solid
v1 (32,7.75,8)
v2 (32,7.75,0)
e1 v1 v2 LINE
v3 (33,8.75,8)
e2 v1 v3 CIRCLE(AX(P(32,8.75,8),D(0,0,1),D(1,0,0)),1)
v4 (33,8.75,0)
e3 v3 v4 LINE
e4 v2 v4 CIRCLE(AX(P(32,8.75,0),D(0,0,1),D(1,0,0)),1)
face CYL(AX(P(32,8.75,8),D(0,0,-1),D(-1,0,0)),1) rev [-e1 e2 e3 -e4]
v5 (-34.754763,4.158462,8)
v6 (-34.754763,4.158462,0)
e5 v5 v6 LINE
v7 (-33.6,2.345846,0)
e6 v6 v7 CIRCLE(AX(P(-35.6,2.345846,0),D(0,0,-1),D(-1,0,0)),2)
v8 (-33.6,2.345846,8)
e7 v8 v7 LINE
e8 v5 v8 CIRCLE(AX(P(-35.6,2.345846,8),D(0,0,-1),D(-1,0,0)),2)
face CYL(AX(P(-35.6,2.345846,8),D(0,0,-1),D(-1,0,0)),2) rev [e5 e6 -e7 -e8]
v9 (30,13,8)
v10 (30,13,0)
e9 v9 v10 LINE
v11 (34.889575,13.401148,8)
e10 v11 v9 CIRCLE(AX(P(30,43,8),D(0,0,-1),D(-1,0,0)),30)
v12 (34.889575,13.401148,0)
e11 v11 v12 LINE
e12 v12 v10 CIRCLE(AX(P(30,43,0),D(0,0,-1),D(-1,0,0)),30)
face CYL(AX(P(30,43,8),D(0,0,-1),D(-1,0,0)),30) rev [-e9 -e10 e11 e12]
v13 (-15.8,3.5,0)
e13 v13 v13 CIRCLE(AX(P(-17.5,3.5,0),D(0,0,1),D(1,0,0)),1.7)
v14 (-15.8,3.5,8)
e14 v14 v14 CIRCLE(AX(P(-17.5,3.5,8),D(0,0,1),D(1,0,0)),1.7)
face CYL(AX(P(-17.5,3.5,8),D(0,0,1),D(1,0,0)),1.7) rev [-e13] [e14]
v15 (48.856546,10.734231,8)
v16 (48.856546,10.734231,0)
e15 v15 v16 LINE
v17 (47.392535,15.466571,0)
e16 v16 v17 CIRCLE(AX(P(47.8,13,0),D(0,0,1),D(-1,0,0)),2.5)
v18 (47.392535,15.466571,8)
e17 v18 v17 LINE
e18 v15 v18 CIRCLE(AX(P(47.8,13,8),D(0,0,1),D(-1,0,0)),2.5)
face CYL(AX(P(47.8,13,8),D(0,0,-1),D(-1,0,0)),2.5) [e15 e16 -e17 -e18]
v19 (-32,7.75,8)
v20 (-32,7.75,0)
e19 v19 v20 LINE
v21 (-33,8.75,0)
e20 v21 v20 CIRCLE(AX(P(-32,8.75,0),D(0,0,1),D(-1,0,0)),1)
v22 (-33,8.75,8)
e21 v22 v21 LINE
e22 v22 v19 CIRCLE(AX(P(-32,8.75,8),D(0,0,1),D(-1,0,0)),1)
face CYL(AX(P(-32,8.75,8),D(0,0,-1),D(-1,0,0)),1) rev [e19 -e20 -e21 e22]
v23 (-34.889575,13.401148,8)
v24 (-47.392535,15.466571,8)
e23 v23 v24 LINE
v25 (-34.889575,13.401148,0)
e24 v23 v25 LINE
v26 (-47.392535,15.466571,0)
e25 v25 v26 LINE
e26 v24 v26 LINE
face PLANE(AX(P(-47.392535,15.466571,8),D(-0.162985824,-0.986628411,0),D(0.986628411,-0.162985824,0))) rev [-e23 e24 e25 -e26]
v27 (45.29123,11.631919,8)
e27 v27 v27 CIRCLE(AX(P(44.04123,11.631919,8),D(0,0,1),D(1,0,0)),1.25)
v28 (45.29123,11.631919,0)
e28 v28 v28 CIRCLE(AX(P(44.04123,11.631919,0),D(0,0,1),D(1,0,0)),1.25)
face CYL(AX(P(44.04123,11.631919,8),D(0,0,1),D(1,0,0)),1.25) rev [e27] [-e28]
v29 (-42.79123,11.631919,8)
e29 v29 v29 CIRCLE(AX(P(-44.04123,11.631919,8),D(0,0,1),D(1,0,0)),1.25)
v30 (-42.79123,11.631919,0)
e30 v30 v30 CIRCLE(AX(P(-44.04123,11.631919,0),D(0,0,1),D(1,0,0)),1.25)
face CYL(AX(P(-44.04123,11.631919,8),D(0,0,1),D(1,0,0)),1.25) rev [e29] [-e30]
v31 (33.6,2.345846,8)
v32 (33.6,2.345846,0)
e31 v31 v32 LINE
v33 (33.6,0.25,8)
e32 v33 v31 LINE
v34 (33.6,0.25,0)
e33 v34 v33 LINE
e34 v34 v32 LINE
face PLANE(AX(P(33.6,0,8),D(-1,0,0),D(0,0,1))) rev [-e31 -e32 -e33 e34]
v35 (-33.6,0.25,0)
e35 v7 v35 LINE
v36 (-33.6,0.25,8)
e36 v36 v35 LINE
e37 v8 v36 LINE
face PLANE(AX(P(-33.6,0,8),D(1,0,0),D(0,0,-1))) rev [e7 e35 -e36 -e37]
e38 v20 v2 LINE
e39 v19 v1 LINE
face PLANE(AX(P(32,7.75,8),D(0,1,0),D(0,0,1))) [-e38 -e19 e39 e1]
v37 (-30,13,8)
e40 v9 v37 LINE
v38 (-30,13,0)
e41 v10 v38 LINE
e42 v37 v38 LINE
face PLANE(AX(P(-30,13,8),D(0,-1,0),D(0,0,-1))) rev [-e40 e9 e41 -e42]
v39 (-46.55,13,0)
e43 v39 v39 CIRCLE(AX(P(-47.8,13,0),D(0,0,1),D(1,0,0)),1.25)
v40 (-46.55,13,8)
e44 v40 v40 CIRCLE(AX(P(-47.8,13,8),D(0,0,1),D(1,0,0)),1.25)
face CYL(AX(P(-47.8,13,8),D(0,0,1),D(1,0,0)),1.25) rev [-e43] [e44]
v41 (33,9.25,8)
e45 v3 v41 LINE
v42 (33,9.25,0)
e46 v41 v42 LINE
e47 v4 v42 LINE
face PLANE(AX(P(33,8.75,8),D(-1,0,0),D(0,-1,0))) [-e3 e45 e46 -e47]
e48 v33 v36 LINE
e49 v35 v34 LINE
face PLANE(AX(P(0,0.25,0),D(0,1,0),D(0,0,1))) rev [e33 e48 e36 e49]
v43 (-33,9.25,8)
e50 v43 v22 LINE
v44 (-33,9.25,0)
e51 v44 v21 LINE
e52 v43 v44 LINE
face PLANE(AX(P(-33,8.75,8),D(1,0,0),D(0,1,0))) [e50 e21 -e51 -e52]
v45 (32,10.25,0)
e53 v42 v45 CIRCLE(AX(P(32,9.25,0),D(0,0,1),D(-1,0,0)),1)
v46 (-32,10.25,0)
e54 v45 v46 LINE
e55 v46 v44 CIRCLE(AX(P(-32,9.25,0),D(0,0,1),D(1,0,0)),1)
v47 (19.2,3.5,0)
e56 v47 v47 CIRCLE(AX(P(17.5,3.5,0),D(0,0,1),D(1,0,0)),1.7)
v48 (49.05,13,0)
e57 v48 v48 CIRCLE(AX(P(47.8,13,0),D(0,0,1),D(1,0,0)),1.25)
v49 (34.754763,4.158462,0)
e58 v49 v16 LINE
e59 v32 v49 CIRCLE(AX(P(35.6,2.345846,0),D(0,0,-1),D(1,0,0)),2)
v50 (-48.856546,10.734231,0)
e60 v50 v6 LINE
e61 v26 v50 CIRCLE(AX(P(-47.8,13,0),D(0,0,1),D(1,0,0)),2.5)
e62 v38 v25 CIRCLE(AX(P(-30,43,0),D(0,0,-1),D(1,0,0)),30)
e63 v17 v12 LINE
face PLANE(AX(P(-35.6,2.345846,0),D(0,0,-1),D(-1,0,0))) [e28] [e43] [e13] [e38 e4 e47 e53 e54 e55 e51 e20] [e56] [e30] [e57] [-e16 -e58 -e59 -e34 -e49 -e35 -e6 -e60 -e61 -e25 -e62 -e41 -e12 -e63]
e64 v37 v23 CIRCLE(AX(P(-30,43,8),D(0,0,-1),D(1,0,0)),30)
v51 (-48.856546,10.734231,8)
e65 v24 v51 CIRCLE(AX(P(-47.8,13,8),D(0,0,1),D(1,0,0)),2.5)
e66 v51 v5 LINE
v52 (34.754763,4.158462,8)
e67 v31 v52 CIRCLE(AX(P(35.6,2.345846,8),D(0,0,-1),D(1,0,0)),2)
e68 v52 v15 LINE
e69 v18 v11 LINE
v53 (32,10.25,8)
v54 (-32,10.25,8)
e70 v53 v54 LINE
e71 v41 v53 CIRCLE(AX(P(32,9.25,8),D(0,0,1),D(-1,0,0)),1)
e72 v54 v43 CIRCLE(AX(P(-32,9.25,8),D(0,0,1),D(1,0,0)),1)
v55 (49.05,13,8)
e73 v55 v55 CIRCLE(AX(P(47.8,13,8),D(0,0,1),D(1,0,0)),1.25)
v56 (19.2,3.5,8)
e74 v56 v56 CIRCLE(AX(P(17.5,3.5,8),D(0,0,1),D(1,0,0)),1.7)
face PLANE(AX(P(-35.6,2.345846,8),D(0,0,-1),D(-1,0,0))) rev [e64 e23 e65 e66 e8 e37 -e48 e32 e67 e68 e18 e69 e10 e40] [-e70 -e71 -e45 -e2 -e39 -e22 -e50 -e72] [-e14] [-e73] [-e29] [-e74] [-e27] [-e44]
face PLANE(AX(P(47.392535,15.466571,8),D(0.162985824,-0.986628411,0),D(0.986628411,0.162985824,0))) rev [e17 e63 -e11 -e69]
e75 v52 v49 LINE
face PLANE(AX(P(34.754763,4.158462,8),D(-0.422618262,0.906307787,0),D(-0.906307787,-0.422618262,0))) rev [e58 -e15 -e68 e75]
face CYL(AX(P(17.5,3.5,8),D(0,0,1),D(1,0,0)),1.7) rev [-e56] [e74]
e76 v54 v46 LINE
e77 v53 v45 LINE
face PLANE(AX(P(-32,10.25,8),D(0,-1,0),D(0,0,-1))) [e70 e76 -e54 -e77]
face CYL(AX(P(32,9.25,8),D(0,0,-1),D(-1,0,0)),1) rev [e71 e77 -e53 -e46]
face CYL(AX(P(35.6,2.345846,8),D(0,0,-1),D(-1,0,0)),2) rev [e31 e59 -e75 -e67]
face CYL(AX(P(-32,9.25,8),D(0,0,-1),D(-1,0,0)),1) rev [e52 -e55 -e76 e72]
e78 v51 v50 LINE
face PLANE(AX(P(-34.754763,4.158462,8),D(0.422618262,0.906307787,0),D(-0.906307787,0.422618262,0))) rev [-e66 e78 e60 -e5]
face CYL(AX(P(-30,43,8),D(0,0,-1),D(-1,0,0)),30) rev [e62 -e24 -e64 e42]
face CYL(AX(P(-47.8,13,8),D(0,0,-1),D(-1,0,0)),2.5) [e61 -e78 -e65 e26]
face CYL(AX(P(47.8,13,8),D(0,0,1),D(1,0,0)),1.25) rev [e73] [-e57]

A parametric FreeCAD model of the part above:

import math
import FreeCAD as App
import Part
import Sketcher
from FreeCAD import Vector
Q = App.Units.Quantity

doc = App.newDocument("Part")
body = doc.addObject("PartDesign::Body", "Body")

sketch1 = doc.addObject("Sketcher::SketchObject", "Sketch")
body.addObject(sketch1)
sketch1.AttachmentSupport = (doc.XY_Plane, [""])
sketch1.MapMode = "FlatFace"
sketch1.addGeometry([
    Part.LineSegment(Vector(-33.6, 0, 0), Vector(33.6, 0, 0)),
    Part.LineSegment(Vector(33.6, 0, 0), Vector(33.6, 2.3, 0)),
    Part.ArcOfCircle(Part.Circle(Vector(35.6, 2.3, 0), Vector(0, 0, 1), 2), math.radians(115), math.radians(180)),
    Part.LineSegment(Vector(34.8, 4.2, 0), Vector(48.9, 10.7, 0)),
    Part.ArcOfCircle(Part.Circle(Vector(47.8, 13, 0), Vector(0, 0, 1), 2.5), math.radians(-65), math.radians(99)),
    Part.LineSegment(Vector(47.4, 15.5, 0), Vector(34.9, 13.4, 0)),
    Part.ArcOfCircle(Part.Circle(Vector(30, 43, 0), Vector(0, 0, 1), 30), math.radians(-90), math.radians(-80.62)),
    Part.LineSegment(Vector(30, 13, 0), Vector(-30, 13, 0)),
    Part.ArcOfCircle(Part.Circle(Vector(-30, 43, 0), Vector(0, 0, 1), 30), math.radians(-99.38), math.radians(-90)),
    Part.LineSegment(Vector(-34.9, 13.4, 0), Vector(-47.4, 15.5, 0)),
    Part.ArcOfCircle(Part.Circle(Vector(-47.8, 13, 0), Vector(0, 0, 1), 2.5), math.radians(81), math.radians(245)),
    Part.LineSegment(Vector(-48.9, 10.7, 0), Vector(-34.8, 4.2, 0)),
    Part.ArcOfCircle(Part.Circle(Vector(-35.6, 2.3, 0), Vector(0, 0, 1), 2), math.radians(0), math.radians(65)),
    Part.LineSegment(Vector(-33.6, 2.3, 0), Vector(-33.6, 0, 0)),
    Part.LineSegment(Vector(33, 9.2, 0), Vector(33, 8.8, 0)),
    Part.ArcOfCircle(Part.Circle(Vector(32, 8.8, 0), Vector(0, 0, 1), 1), math.radians(-90), math.radians(0)),
    Part.LineSegment(Vector(32, 7.8, 0), Vector(-32, 7.8, 0)),
    Part.ArcOfCircle(Part.Circle(Vector(-32, 8.8, 0), Vector(0, 0, 1), 1), math.radians(-180), math.radians(-90)),
    Part.LineSegment(Vector(-33, 8.8, 0), Vector(-33, 9.2, 0)),
    Part.ArcOfCircle(Part.Circle(Vector(-32, 9.2, 0), Vector(0, 0, 1), 1), math.radians(90), math.radians(180)),
    Part.LineSegment(Vector(-32, 10.2, 0), Vector(32, 10.2, 0)),
    Part.ArcOfCircle(Part.Circle(Vector(32, 9.2, 0), Vector(0, 0, 1), 1), math.radians(0), math.radians(90)),
    Part.Circle(Vector(-44, 11.6, 0), Vector(0, 0, 1), 0.5),
    Part.Circle(Vector(-47.8, 13, 0), Vector(0, 0, 1), 0.5),
    Part.Circle(Vector(44, 11.6, 0), Vector(0, 0, 1), 0.5),
    Part.Circle(Vector(47.8, 13, 0), Vector(0, 0, 1), 0.5),
], False)
sketch1.addConstraint([
    Sketcher.Constraint("Coincident", 0, 2, 1, 1),
    Sketcher.Constraint("Tangent", 1, 2, 2, 2),
    Sketcher.Constraint("Tangent", 2, 1, 3, 1),
    Sketcher.Constraint("Tangent", 3, 2, 4, 1),
    Sketcher.Constraint("Tangent", 4, 2, 5, 1),
    Sketcher.Constraint("Tangent", 5, 2, 6, 2),
    Sketcher.Constraint("Tangent", 6, 1, 7, 1),
    Sketcher.Constraint("Tangent", 7, 2, 8, 2),
    Sketcher.Constraint("Tangent", 8, 1, 9, 1),
    Sketcher.Constraint("Tangent", 9, 2, 10, 1),
    Sketcher.Constraint("Tangent", 10, 2, 11, 1),
    Sketcher.Constraint("Tangent", 11, 2, 12, 2),
    Sketcher.Constraint("Tangent", 12, 1, 13, 1),
    Sketcher.Constraint("Coincident", 13, 2, 0, 1),
    Sketcher.Constraint("Tangent", 14, 2, 15, 2),
    Sketcher.Constraint("Tangent", 15, 1, 16, 1),
    Sketcher.Constraint("Tangent", 16, 2, 17, 2),
    Sketcher.Constraint("Tangent", 17, 1, 18, 1),
    Sketcher.Constraint("Tangent", 18, 2, 19, 2),
    Sketcher.Constraint("Tangent", 19, 1, 20, 1),
    Sketcher.Constraint("Tangent", 20, 2, 21, 2),
    Sketcher.Constraint("Tangent", 21, 1, 14, 1),
    Sketcher.Constraint("Horizontal", 0),
    Sketcher.Constraint("Vertical", 1),
    Sketcher.Constraint("Horizontal", 7),
    Sketcher.Constraint("Vertical", 13),
    Sketcher.Constraint("Vertical", 14),
    Sketcher.Constraint("Horizontal", 16),
    Sketcher.Constraint("Vertical", 18),
    Sketcher.Constraint("Horizontal", 20),
    Sketcher.Constraint("Coincident", 23, 3, 10, 3),
    Sketcher.Constraint("Coincident", 25, 3, 4, 3),
    Sketcher.Constraint("Equal", 6, 8),
    Sketcher.Constraint("Equal", 4, 10),
    Sketcher.Constraint("Equal", 2, 12),
    Sketcher.Constraint("Equal", 15, 17),
    Sketcher.Constraint("Equal", 17, 19),
    Sketcher.Constraint("Equal", 19, 21),
    Sketcher.Constraint("Equal", 22, 23),
    Sketcher.Constraint("Equal", 23, 24),
    Sketcher.Constraint("Equal", 24, 25),
    Sketcher.Constraint("Symmetric", 0, 2, 13, 2, -1, 1),
    Sketcher.Constraint("Symmetric", 4, 3, 10, 3, -2),
    Sketcher.Constraint("Symmetric", 22, 3, 24, 3, -2),
    Sketcher.Constraint("Horizontal", 2, 3, 12, 3),
    Sketcher.Constraint("Horizontal", 25, 3, 6, 1),
    Sketcher.Constraint("Horizontal", 5, 2, 8, 1),
    Sketcher.Constraint("Diameter", 22, 1.0),
    Sketcher.Constraint("Radius", 2, 2.0),
    Sketcher.Constraint("Radius", 6, 30.0),
    Sketcher.Constraint("Radius", 15, 1.0),
    Sketcher.Constraint("Radius", 4, 2.5),
    Sketcher.Constraint("DistanceX", 7, 2, 7, 1, 60.0),
    Sketcher.Constraint("DistanceX", 16, 2, 16, 1, 64.0),
    Sketcher.Constraint("Angle", 3, Q("25 deg")),
    Sketcher.Constraint("DistanceX", 0, 1, 0, 2, 67.2),
    Sketcher.Constraint("DistanceY", 14, 2, 14, 1, 0.5),
    Sketcher.Constraint("DistanceY", -1, 1, 4, 3, 13.0),
    Sketcher.Constraint("DistanceX", -1, 1, 15, 3, 32.0),
    Sketcher.Constraint("DistanceX", -1, 1, 4, 3, 47.8),
    Sketcher.Constraint("DistanceY", -1, 1, 15, 3, 8.75),
    Sketcher.Constraint("DistanceX", 22, 3, -1, 1, 44.04123),
    Sketcher.Constraint("DistanceY", -1, 1, 22, 3, 11.631919),
])
pad1 = doc.addObject("PartDesign::Pad", "Pad")
body.addObject(pad1)
pad1.Profile = sketch1
pad1.Length = 8

sketch2 = doc.addObject("Sketcher::SketchObject", "Sketch001")
body.addObject(sketch2)
sketch2.AttachmentSupport = (doc.XY_Plane, [""])
sketch2.MapMode = "FlatFace"
sketch2.AttachmentOffset = App.Placement(Vector(0, 0, 8), App.Rotation())
sketch2.addGeometry([
    Part.Circle(Vector(-17.5, 3.5, 0), Vector(0, 0, 1), 1.7),
    Part.Circle(Vector(17.5, 3.5, 0), Vector(0, 0, 1), 1.7),
], False)
sketch2.addConstraint([
    Sketcher.Constraint("Equal", 0, 1),
    Sketcher.Constraint("Symmetric", 0, 3, 1, 3, -2),
    Sketcher.Constraint("Diameter", 0, 3.4),
    Sketcher.Constraint("DistanceX", 0, 3, 1, 3, 35.0),
    Sketcher.Constraint("DistanceY", -1, 1, 0, 3, 3.5),
])
doc.recompute()
hole = doc.addObject("PartDesign::Hole", "Hole")
body.addObject(hole)
hole.Profile = sketch2
hole.ThreadType = "None"
hole.Diameter = 3.4
hole.DepthType = "ThroughAll"

sketch3 = doc.addObject("Sketcher::SketchObject", "Sketch002")
body.addObject(sketch3)
sketch3.AttachmentSupport = (doc.XY_Plane, [""])
sketch3.MapMode = "FlatFace"
sketch3.AttachmentOffset = App.Placement(Vector(0, 0, 8), App.Rotation())
sketch3.addGeometry([
    Part.Circle(Vector(-47.8, 13, 0), Vector(0, 0, 1), 1.2),
    Part.Circle(Vector(47.8, 13, 0), Vector(0, 0, 1), 1.2),
    Part.Circle(Vector(-44, 11.6, 0), Vector(0, 0, 1), 1.2),
    Part.Circle(Vector(44, 11.6, 0), Vector(0, 0, 1), 1.2),
], False)
sketch3.addConstraint([
    Sketcher.Constraint("Equal", 0, 1),
    Sketcher.Constraint("Equal", 1, 2),
    Sketcher.Constraint("Equal", 2, 3),
    Sketcher.Constraint("Symmetric", 0, 3, 1, 3, -2),
    Sketcher.Constraint("Symmetric", 2, 3, 3, 3, -2),
    Sketcher.Constraint("Diameter", 0, 2.5),
    Sketcher.Constraint("DistanceY", -1, 1, 0, 3, 13.0),
    Sketcher.Constraint("DistanceX", 0, 3, -1, 1, 47.8),
    Sketcher.Constraint("DistanceX", 2, 3, -1, 1, 44.04123),
    Sketcher.Constraint("DistanceY", -1, 1, 2, 3, 11.631919),
])
doc.recompute()
hole2 = doc.addObject("PartDesign::Hole", "Hole001")
body.addObject(hole2)
hole2.Profile = sketch3
hole2.ThreadType = "None"
hole2.Diameter = 2.5
hole2.DepthType = "ThroughAll"

sketch4 = doc.addObject("Sketcher::SketchObject", "Sketch003")
body.addObject(sketch4)
sketch4.AttachmentSupport = (doc.XZ_Plane, [""])
sketch4.MapMode = "FlatFace"
sketch4.addGeometry([
    Part.LineSegment(Vector(-34, 8, 0), Vector(-34, 0, 0)),
    Part.LineSegment(Vector(-34, 0, 0), Vector(34, 0, 0)),
    Part.LineSegment(Vector(34, 0, 0), Vector(34, 8, 0)),
    Part.LineSegment(Vector(34, 8, 0), Vector(-34, 8, 0)),
], False)
sketch4.addConstraint([
    Sketcher.Constraint("Coincident", 0, 2, 1, 1),
    Sketcher.Constraint("Coincident", 1, 2, 2, 1),
    Sketcher.Constraint("Coincident", 2, 2, 3, 1),
    Sketcher.Constraint("Coincident", 3, 2, 0, 1),
    Sketcher.Constraint("Vertical", 0),
    Sketcher.Constraint("Horizontal", 1),
    Sketcher.Constraint("Vertical", 2),
    Sketcher.Constraint("Horizontal", 3),
    Sketcher.Constraint("Symmetric", 0, 2, 1, 2, -1, 1),
    Sketcher.Constraint("DistanceY", 0, 2, 0, 1, 8.0),
    Sketcher.Constraint("DistanceX", 1, 1, 1, 2, 67.2),
])
pocket1 = doc.addObject("PartDesign::Pocket", "Pocket")
body.addObject(pocket1)
pocket1.Profile = sketch4
pocket1.Length = 0.25

doc.recompute()
